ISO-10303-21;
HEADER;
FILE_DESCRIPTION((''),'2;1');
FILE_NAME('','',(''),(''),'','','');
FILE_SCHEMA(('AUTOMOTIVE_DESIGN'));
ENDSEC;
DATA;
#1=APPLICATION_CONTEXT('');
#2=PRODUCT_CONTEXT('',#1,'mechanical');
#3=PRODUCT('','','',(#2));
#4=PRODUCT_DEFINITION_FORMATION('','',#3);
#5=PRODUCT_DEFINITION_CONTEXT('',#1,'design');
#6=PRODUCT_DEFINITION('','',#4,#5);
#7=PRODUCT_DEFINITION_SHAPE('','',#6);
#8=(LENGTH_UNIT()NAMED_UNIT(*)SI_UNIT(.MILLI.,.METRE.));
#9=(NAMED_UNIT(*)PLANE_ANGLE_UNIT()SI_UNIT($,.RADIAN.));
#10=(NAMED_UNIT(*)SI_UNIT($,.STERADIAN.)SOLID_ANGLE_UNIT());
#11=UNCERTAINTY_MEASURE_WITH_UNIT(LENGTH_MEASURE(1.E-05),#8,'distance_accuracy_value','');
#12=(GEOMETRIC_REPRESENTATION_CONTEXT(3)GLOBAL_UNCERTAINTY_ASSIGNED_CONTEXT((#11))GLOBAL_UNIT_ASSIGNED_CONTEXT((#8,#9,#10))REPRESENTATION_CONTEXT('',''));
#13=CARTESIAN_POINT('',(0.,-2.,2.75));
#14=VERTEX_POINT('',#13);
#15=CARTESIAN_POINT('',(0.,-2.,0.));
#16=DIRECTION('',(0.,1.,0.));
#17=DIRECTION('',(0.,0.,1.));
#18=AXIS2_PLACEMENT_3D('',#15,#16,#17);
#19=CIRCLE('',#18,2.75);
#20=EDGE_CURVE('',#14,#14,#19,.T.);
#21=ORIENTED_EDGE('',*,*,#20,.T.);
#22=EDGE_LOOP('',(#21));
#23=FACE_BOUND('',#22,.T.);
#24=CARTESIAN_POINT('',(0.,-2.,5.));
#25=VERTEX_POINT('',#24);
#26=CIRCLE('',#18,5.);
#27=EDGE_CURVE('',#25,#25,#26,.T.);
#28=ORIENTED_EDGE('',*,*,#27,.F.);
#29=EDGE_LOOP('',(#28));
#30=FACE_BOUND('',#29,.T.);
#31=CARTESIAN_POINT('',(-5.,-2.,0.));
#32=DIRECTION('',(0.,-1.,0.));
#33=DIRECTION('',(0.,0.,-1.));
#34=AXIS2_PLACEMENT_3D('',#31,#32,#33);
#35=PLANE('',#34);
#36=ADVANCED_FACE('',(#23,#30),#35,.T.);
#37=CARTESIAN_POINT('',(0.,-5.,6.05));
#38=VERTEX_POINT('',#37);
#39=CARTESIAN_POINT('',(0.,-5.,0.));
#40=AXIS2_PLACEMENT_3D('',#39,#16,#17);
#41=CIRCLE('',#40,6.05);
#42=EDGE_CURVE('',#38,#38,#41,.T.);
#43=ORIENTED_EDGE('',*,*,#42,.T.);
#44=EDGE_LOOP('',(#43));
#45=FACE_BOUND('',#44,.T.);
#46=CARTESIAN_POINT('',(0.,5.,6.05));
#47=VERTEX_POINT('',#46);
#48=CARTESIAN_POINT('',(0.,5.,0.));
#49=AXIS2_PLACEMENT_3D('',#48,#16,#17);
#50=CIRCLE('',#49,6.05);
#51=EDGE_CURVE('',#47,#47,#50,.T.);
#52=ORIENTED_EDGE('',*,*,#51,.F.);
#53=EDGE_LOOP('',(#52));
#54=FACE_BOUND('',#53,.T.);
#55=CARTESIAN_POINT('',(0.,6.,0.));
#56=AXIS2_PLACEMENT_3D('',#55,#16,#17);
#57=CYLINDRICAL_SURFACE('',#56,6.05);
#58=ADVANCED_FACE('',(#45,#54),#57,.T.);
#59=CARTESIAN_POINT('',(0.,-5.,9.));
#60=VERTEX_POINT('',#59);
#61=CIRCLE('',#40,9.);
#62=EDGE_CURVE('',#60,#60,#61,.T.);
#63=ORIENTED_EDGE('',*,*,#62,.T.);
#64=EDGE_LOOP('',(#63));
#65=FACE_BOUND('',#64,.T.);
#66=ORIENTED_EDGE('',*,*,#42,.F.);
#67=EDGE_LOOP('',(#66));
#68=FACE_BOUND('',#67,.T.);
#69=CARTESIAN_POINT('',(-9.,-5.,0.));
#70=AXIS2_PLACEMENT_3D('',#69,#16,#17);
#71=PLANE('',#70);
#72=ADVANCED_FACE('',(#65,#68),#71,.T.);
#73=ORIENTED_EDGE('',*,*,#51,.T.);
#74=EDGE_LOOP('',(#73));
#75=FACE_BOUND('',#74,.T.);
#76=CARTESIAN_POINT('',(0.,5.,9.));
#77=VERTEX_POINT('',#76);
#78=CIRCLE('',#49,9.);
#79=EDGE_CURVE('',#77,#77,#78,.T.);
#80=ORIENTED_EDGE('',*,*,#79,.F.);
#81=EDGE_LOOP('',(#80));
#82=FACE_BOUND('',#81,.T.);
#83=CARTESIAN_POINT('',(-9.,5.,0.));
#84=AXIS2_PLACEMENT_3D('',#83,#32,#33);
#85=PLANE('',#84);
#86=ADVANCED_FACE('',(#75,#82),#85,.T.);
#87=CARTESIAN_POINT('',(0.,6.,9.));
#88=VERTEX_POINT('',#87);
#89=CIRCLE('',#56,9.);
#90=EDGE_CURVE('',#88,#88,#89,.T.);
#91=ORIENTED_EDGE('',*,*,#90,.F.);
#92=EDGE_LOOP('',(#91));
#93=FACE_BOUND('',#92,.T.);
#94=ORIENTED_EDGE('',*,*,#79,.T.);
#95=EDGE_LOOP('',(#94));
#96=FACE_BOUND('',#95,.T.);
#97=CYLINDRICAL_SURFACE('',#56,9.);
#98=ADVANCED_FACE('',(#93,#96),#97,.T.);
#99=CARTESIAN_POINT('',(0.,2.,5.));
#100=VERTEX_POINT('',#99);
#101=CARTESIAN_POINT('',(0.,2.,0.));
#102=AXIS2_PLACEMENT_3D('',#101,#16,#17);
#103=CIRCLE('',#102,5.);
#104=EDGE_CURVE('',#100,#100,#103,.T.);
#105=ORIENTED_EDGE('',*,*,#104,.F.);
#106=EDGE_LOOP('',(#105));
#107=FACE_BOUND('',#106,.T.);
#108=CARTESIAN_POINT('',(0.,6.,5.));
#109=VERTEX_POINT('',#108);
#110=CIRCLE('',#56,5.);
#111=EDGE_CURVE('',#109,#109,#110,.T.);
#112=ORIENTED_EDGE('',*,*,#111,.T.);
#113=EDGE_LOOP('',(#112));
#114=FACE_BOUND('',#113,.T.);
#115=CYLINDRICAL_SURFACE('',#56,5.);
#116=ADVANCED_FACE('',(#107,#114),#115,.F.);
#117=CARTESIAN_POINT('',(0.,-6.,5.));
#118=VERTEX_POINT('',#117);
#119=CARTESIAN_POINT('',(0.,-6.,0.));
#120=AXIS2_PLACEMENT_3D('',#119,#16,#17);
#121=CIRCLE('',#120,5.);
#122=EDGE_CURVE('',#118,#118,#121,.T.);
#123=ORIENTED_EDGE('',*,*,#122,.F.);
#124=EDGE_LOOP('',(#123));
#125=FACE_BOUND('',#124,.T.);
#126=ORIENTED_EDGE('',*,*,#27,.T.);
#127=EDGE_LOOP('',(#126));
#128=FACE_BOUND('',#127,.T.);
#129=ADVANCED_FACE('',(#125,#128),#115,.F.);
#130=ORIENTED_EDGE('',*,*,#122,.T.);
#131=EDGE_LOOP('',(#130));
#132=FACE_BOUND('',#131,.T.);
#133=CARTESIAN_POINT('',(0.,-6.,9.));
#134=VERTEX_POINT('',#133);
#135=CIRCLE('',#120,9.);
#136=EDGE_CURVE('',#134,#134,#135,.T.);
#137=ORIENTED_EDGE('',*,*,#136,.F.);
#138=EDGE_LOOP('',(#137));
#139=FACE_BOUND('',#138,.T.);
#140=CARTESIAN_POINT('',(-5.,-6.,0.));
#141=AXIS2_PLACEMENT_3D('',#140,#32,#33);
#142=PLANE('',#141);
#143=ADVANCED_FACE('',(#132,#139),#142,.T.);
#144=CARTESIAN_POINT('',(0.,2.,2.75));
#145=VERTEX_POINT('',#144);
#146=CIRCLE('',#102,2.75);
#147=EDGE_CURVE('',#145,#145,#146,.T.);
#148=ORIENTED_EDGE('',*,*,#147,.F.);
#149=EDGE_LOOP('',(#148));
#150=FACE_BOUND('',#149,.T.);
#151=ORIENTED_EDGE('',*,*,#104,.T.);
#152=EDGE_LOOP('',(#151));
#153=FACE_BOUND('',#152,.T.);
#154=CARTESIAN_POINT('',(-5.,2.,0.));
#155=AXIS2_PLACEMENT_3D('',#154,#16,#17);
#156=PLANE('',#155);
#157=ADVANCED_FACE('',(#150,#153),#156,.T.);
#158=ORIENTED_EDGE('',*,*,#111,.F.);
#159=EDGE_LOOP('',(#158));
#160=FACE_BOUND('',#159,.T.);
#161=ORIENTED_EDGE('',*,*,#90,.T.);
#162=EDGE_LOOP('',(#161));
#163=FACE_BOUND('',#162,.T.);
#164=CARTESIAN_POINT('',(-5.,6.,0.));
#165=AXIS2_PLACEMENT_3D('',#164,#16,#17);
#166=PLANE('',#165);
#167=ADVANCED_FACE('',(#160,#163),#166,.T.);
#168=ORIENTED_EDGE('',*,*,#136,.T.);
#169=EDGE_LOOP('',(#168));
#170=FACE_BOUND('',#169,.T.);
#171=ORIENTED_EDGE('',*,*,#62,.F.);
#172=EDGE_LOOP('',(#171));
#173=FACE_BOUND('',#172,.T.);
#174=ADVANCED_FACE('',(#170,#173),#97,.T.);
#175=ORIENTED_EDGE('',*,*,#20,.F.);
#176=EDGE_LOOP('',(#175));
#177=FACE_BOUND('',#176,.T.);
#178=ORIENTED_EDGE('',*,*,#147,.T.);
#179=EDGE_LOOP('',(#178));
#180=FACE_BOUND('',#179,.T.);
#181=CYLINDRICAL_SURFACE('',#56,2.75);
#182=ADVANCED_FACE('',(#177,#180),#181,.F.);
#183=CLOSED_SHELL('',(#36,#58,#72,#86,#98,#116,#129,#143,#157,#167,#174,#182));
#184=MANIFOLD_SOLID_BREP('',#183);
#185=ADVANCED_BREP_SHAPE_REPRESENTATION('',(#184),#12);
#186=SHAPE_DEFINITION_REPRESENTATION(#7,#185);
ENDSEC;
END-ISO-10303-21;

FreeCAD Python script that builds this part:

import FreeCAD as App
import Part
import Sketcher

doc = App.newDocument("Part")
body = doc.addObject("PartDesign::Body", "Body")

# Sketch on XY plane
sketch1 = body.newObject("Sketcher::SketchObject", "Sketch")
sketch1.AttachmentSupport = (doc.getObject("XY_Plane"), [""])
sketch1.MapMode = "FlatFace"
sketch1.addGeometry([
    Part.LineSegment(App.Vector(-5, 6, 0), App.Vector(-9, 6, 0)),  # 0
    Part.LineSegment(App.Vector(-9, 6, 0), App.Vector(-9, 5, 0)),  # 1
    Part.LineSegment(App.Vector(-9, 5, 0), App.Vector(-6, 5, 0)),  # 2
    Part.LineSegment(App.Vector(-6, 5, 0), App.Vector(-6, -5, 0)),  # 3
    Part.LineSegment(App.Vector(-6, -5, 0), App.Vector(-9, -5, 0)),  # 4
    Part.LineSegment(App.Vector(-9, -5, 0), App.Vector(-9, -6, 0)),  # 5
    Part.LineSegment(App.Vector(-9, -6, 0), App.Vector(-5, -6, 0)),  # 6
    Part.LineSegment(App.Vector(-5, -6, 0), App.Vector(-5, -2, 0)),  # 7
    Part.LineSegment(App.Vector(-5, -2, 0), App.Vector(-2.8, -2, 0)),  # 8
    Part.LineSegment(App.Vector(-2.8, -2, 0), App.Vector(-2.8, 2, 0)),  # 9
    Part.LineSegment(App.Vector(-2.8, 2, 0), App.Vector(-5, 2, 0)),  # 10
    Part.LineSegment(App.Vector(-5, 2, 0), App.Vector(-5, 6, 0)),  # 11
], False)
sketch1.addConstraint([
    Sketcher.Constraint("Coincident", 0, 2, 1, 1),
    Sketcher.Constraint("Coincident", 1, 2, 2, 1),
    Sketcher.Constraint("Coincident", 2, 2, 3, 1),
    Sketcher.Constraint("Coincident", 3, 2, 4, 1),
    Sketcher.Constraint("Coincident", 4, 2, 5, 1),
    Sketcher.Constraint("Coincident", 5, 2, 6, 1),
    Sketcher.Constraint("Coincident", 6, 2, 7, 1),
    Sketcher.Constraint("Coincident", 7, 2, 8, 1),
    Sketcher.Constraint("Coincident", 8, 2, 9, 1),
    Sketcher.Constraint("Coincident", 9, 2, 10, 1),
    Sketcher.Constraint("Coincident", 10, 2, 11, 1),
    Sketcher.Constraint("Coincident", 11, 2, 0, 1),
    Sketcher.Constraint("Horizontal", 0),
    Sketcher.Constraint("Vertical", 1),
    Sketcher.Constraint("Horizontal", 2),
    Sketcher.Constraint("Vertical", 3),
    Sketcher.Constraint("Horizontal", 4),
    Sketcher.Constraint("Vertical", 5),
    Sketcher.Constraint("Horizontal", 6),
    Sketcher.Constraint("Vertical", 7),
    Sketcher.Constraint("Horizontal", 8),
    Sketcher.Constraint("Vertical", 9),
    Sketcher.Constraint("Horizontal", 10),
    Sketcher.Constraint("Vertical", 11),
    Sketcher.Constraint("Symmetric", 1, 2, 4, 2, -1),
    Sketcher.Constraint("Symmetric", 7, 2, 10, 2, -1),
    Sketcher.Constraint("Equal", 1, 5),
    Sketcher.Constraint("Equal", 6, 7),
    Sketcher.Constraint("Equal", 7, 9),
    Sketcher.Constraint("DistanceX", 0, 2, 0, 1, 4.0),
    Sketcher.Constraint("DistanceY", 1, 2, 1, 1, 1.0),
    Sketcher.Constraint("DistanceX", 0, 2, -1, 1, 9.0),
    Sketcher.Constraint("DistanceX", 2, 1, 2, 2, 2.95),
    Sketcher.Constraint("DistanceX", 8, 1, 8, 2, 2.25),
])
revolution = body.newObject("PartDesign::Revolution", "Revolution")
revolution.Profile = sketch1
revolution.ReferenceAxis = (sketch1, ["V_Axis"])
revolution.Angle = 360

doc.recompute()
